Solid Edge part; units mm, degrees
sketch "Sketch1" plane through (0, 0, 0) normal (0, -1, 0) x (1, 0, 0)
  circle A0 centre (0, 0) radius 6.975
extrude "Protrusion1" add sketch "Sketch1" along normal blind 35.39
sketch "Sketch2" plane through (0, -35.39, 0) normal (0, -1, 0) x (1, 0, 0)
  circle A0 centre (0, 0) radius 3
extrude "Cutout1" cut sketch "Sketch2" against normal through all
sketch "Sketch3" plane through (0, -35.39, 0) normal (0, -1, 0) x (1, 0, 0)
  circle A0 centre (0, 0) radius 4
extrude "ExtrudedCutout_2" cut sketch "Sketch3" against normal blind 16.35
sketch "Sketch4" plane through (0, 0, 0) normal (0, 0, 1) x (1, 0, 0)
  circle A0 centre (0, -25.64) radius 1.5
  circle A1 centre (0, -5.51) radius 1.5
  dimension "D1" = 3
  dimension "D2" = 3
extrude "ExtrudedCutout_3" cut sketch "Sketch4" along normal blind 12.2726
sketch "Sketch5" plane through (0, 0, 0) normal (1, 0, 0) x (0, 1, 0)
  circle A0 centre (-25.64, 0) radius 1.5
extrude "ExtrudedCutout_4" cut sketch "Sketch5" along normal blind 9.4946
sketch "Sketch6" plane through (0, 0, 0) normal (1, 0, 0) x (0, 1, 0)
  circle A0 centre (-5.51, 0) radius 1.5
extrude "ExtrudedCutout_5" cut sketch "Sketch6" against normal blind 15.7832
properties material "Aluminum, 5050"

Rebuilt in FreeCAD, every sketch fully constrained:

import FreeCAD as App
import Part
import Sketcher

doc = App.newDocument("Part")
body = doc.addObject("PartDesign::Body", "Body")

sketch1 = body.newObject("Sketcher::SketchObject", "Sketch")
sketch1.AttachmentSupport = (doc.getObject("XZ_Plane"), [""])
sketch1.MapMode = "FlatFace"
sketch1.addGeometry(Part.Circle(App.Vector(0, 0, 0), App.Vector(0, 0, 1), 6.975), False)
sketch1.addConstraint(Sketcher.Constraint("Coincident", 0, 3, -1, 1))
sketch1.addConstraint(Sketcher.Constraint("Diameter", 0, 13.95))
pad1 = body.newObject("PartDesign::Pad", "Pad")
pad1.Profile = sketch1
pad1.Length = 35.39

sketch2 = body.newObject("Sketcher::SketchObject", "Sketch001")
sketch2.AttachmentSupport = (doc.getObject("XZ_Plane"), [""])
sketch2.MapMode = "FlatFace"
sketch2.AttachmentOffset = App.Placement(App.Vector(0, 0, 35.39), App.Rotation())
sketch2.addGeometry(Part.Circle(App.Vector(0, 0, 0), App.Vector(0, 0, 1), 3), False)
sketch2.addConstraint(Sketcher.Constraint("Coincident", 0, 3, -1, 1))
sketch2.addConstraint(Sketcher.Constraint("Diameter", 0, 6.0))
pocket1 = body.newObject("PartDesign::Pocket", "Pocket")
pocket1.Profile = sketch2
pocket1.Type = "ThroughAll"

sketch3 = body.newObject("Sketcher::SketchObject", "Sketch002")
sketch3.AttachmentSupport = (doc.getObject("XZ_Plane"), [""])
sketch3.MapMode = "FlatFace"
sketch3.AttachmentOffset = App.Placement(App.Vector(0, 0, 35.39), App.Rotation())
sketch3.addGeometry(Part.Circle(App.Vector(0, 0, 0), App.Vector(0, 0, 1), 4), False)
sketch3.addConstraint(Sketcher.Constraint("Coincident", 0, 3, -1, 1))
sketch3.addConstraint(Sketcher.Constraint("Diameter", 0, 8.0))
pocket2 = body.newObject("PartDesign::Pocket", "Pocket001")
pocket2.Profile = sketch3
pocket2.Length = 16.35

sketch4 = body.newObject("Sketcher::SketchObject", "Sketch003")
sketch4.AttachmentSupport = (doc.getObject("XY_Plane"), [""])
sketch4.MapMode = "FlatFace"
sketch4.addGeometry(Part.Circle(App.Vector(0, -25.64, 0), App.Vector(0, 0, 1), 1.5), False)
sketch4.addGeometry(Part.Circle(App.Vector(0, -5.51, 0), App.Vector(0, 0, 1), 1.5), False)
sketch4.addConstraint(Sketcher.Constraint("Equal", 0, 1))
sketch4.addConstraint(Sketcher.Constraint("PointOnObject", 0, 3, -2))
sketch4.addConstraint(Sketcher.Constraint("PointOnObject", 1, 3, -2))
sketch4.addConstraint(Sketcher.Constraint("Diameter", 0, 3.0))
sketch4.addConstraint(Sketcher.Constraint("DistanceY", 0, 3, -1, 1, 25.64))
sketch4.addConstraint(Sketcher.Constraint("DistanceY", 1, 3, -1, 1, 5.51))
pocket3 = body.newObject("PartDesign::Pocket", "Pocket002")
pocket3.Profile = sketch4
pocket3.Length = 12.2726
pocket3.Reversed = True

sketch5 = body.newObject("Sketcher::SketchObject", "Sketch004")
sketch5.AttachmentSupport = (doc.getObject("YZ_Plane"), [""])
sketch5.MapMode = "FlatFace"
sketch5.addGeometry(Part.Circle(App.Vector(-25.64, 0, 0), App.Vector(0, 0, 1), 1.5), False)
sketch5.addConstraint(Sketcher.Constraint("PointOnObject", 0, 3, -1))
sketch5.addConstraint(Sketcher.Constraint("Diameter", 0, 3.0))
sketch5.addConstraint(Sketcher.Constraint("DistanceX", 0, 3, -1, 1, 25.64))
pocket4 = body.newObject("PartDesign::Pocket", "Pocket003")
pocket4.Profile = sketch5
pocket4.Length = 9.4946
pocket4.Reversed = True

sketch6 = body.newObject("Sketcher::SketchObject", "Sketch005")
sketch6.AttachmentSupport = (doc.getObject("YZ_Plane"), [""])
sketch6.MapMode = "FlatFace"
sketch6.addGeometry(Part.Circle(App.Vector(-5.51, 0, 0), App.Vector(0, 0, 1), 1.5), False)
sketch6.addConstraint(Sketcher.Constraint("PointOnObject", 0, 3, -1))
sketch6.addConstraint(Sketcher.Constraint("Diameter", 0, 3.0))
sketch6.addConstraint(Sketcher.Constraint("DistanceX", 0, 3, -1, 1, 5.51))
pocket5 = body.newObject("PartDesign::Pocket", "Pocket004")
pocket5.Profile = sketch6
pocket5.Length = 15.7832

doc.recompute()
